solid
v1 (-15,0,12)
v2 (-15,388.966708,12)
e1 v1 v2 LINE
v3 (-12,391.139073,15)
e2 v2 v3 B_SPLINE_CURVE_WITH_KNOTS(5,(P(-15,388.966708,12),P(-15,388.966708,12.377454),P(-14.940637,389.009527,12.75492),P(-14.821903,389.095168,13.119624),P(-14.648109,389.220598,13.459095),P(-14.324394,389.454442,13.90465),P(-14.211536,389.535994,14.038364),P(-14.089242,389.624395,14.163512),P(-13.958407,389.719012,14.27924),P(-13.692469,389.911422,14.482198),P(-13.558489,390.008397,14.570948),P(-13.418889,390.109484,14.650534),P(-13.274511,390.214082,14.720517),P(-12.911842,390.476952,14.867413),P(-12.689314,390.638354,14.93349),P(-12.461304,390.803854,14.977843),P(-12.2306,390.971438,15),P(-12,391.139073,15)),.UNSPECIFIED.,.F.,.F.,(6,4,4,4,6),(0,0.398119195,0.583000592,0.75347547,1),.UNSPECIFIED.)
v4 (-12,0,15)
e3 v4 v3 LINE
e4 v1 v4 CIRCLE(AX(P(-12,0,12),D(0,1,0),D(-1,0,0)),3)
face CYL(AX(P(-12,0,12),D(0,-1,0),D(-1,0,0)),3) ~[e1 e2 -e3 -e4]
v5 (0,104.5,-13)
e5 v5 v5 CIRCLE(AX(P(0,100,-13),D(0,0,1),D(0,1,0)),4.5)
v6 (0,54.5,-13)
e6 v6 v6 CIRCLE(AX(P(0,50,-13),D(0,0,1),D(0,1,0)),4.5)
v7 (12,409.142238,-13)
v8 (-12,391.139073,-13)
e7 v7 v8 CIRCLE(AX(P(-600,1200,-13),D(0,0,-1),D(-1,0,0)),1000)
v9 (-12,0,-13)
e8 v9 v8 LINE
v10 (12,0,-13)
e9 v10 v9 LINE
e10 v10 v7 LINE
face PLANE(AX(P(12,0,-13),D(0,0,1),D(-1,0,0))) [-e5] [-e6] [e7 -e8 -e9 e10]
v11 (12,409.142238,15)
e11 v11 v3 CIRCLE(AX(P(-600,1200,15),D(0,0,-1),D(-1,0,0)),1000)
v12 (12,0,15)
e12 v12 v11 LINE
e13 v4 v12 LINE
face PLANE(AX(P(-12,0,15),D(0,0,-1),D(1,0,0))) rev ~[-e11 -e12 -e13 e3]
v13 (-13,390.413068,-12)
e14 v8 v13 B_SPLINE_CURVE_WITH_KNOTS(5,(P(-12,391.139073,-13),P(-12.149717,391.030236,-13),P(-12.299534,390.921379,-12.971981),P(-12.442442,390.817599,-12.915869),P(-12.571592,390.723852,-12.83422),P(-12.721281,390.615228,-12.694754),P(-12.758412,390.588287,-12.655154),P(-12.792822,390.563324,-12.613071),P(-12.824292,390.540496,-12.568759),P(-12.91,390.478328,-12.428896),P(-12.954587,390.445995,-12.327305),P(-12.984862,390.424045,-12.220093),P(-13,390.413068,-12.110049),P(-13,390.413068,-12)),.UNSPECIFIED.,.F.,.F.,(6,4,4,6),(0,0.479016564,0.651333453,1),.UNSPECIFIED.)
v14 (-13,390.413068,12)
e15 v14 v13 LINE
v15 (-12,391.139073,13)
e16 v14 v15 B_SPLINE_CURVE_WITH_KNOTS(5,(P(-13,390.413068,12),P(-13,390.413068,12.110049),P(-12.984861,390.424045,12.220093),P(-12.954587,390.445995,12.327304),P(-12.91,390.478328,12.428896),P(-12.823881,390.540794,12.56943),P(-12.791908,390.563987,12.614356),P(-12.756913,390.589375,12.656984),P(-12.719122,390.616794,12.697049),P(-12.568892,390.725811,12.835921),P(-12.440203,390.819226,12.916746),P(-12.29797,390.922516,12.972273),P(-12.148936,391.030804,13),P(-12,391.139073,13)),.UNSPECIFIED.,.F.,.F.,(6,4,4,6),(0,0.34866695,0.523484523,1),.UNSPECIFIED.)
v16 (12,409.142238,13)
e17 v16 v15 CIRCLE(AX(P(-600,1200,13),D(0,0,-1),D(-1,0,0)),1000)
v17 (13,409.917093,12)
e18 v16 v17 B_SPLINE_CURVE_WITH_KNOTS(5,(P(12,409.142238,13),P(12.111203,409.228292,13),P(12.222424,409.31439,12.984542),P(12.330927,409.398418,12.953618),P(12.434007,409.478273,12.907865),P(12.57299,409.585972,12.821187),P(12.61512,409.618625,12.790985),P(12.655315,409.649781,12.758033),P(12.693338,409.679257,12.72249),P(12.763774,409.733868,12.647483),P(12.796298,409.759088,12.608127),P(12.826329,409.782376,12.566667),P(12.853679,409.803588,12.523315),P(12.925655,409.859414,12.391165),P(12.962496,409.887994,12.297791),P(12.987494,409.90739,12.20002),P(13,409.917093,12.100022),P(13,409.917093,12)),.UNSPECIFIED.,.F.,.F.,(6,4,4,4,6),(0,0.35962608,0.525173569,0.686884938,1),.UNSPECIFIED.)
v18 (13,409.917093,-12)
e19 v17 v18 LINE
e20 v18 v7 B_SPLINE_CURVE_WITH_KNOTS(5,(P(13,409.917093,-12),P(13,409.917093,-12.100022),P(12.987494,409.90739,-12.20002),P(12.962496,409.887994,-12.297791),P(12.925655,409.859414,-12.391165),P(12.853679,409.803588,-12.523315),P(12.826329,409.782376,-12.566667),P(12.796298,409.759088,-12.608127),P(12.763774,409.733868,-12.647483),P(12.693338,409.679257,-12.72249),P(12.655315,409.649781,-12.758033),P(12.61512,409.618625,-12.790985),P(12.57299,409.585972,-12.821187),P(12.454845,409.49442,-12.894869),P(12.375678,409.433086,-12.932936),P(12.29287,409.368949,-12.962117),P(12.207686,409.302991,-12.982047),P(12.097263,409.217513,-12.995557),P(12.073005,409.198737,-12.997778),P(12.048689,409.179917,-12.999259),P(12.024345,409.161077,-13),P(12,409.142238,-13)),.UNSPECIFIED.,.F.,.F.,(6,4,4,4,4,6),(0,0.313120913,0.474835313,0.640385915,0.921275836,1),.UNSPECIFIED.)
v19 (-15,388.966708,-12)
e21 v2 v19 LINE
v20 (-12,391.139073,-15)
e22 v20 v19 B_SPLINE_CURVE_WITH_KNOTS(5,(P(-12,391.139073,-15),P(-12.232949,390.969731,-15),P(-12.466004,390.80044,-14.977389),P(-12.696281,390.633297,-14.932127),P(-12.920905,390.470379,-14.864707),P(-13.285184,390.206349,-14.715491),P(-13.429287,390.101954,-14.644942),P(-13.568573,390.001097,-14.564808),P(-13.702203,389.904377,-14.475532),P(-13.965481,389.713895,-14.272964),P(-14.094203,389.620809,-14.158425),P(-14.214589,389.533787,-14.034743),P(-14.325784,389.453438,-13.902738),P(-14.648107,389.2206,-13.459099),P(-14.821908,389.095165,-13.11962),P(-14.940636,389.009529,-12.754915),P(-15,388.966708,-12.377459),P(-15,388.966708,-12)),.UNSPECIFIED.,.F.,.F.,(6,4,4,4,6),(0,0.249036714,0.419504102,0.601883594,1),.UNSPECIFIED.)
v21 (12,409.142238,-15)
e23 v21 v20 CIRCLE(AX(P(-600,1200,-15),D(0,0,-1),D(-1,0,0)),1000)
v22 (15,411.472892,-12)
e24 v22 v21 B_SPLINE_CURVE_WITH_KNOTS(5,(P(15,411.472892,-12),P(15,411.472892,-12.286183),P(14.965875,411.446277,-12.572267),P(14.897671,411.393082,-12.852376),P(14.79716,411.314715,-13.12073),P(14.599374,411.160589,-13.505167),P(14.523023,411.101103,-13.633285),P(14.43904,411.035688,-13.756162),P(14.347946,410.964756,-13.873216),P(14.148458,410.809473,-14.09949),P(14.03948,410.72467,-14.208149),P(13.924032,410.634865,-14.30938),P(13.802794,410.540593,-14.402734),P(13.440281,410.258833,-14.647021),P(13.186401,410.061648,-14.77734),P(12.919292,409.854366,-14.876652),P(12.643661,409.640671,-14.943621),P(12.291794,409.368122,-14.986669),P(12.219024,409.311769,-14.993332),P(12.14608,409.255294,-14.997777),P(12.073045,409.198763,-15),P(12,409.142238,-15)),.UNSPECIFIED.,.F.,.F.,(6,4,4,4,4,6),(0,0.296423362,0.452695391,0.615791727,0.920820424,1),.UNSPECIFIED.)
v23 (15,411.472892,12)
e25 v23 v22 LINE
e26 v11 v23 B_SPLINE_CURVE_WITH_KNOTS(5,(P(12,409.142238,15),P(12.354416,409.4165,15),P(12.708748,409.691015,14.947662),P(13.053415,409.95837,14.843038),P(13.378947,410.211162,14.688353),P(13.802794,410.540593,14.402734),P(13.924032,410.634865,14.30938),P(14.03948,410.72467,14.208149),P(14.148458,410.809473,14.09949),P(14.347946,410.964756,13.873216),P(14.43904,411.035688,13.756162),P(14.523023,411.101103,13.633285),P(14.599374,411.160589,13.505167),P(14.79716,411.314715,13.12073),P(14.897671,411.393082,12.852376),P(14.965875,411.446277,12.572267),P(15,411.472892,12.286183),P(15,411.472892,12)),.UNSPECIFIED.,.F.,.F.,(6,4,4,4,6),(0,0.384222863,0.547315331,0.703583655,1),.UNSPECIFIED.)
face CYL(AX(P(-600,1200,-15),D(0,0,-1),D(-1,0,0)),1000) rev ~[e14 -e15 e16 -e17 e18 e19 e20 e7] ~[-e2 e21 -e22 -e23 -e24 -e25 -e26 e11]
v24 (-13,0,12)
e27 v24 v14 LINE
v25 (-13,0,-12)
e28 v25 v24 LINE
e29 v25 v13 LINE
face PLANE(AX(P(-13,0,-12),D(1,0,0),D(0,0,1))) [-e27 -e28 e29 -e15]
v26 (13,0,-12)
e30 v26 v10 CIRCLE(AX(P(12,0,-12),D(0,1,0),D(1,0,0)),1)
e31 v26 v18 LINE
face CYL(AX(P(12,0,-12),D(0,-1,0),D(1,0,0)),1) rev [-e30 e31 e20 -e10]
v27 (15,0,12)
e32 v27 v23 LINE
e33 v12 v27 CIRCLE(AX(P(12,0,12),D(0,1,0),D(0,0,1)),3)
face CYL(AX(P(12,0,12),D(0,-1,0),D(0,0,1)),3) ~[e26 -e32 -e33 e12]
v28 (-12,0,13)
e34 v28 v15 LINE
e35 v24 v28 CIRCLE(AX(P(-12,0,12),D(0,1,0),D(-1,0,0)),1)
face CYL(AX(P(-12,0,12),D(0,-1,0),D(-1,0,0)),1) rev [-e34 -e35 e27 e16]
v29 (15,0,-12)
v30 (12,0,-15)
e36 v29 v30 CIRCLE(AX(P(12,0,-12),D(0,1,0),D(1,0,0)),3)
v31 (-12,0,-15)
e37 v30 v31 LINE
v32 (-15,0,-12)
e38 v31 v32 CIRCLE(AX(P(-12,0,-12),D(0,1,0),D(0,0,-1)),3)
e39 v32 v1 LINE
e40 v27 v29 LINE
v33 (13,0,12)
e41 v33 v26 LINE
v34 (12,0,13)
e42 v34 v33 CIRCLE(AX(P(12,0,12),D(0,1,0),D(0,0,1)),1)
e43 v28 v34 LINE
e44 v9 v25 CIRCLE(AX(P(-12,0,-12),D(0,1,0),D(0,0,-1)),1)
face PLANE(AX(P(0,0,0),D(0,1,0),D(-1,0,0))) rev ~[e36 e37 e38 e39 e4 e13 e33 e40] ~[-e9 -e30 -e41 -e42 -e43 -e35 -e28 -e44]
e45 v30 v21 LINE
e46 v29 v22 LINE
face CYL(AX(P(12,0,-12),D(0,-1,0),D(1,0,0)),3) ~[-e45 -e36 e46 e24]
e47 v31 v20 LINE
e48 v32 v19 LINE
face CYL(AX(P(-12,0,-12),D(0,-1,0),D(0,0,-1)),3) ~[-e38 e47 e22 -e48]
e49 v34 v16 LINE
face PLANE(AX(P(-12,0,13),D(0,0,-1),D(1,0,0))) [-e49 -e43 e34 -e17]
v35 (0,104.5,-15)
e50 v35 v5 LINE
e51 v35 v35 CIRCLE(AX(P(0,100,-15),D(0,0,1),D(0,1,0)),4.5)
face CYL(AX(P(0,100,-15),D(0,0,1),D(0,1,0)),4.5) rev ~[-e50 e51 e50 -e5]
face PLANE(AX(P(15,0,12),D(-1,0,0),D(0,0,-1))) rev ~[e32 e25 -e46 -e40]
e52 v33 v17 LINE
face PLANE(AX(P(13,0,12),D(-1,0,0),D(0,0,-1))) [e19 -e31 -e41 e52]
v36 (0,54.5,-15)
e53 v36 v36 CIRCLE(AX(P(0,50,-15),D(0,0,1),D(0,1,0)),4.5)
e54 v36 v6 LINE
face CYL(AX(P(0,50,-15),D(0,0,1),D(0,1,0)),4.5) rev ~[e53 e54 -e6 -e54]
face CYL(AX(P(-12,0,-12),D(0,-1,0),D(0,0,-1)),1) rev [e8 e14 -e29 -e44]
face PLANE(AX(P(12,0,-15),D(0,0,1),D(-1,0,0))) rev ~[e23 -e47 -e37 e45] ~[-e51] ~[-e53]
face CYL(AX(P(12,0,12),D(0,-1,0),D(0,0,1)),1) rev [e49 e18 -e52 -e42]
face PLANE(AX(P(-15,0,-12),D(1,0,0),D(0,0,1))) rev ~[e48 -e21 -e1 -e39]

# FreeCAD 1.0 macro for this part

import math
import FreeCAD as App
import Part
import Sketcher
Q = App.Units.Quantity

doc = App.newDocument("Part")
body = doc.addObject("PartDesign::Body", "Body")

# Sketch on XZ plane
sketch1 = body.newObject("Sketcher::SketchObject", "Sketch")
sketch1.AttachmentSupport = (doc.getObject("XZ_Plane"), [""])
sketch1.MapMode = "FlatFace"
sketch1.addGeometry([
    Part.ArcOfCircle(Part.Circle(App.Vector(12, -12, 0), App.Vector(0, 0, 1), 3), math.radians(-90), math.radians(0)),  # 0
    Part.LineSegment(App.Vector(12, -15, 0), App.Vector(-12, -15, 0)),  # 1
    Part.ArcOfCircle(Part.Circle(App.Vector(-12, -12, 0), App.Vector(0, 0, 1), 3), math.radians(180), math.radians(270)),  # 2
    Part.LineSegment(App.Vector(-15, -12, 0), App.Vector(-15, 12, 0)),  # 3
    Part.ArcOfCircle(Part.Circle(App.Vector(-12, 12, 0), App.Vector(0, 0, 1), 3), math.radians(90), math.radians(180)),  # 4
    Part.LineSegment(App.Vector(-12, 15, 0), App.Vector(12, 15, 0)),  # 5
    Part.ArcOfCircle(Part.Circle(App.Vector(12, 12, 0), App.Vector(0, 0, 1), 3), math.radians(0), math.radians(90)),  # 6
    Part.LineSegment(App.Vector(15, 12, 0), App.Vector(15, -12, 0)),  # 7
    Part.LineSegment(App.Vector(-13, 12, 0), App.Vector(-13, -12, 0)),  # 8
    Part.ArcOfCircle(Part.Circle(App.Vector(-12, -12, 0), App.Vector(0, 0, 1), 1), math.radians(180), math.radians(270)),  # 9
    Part.LineSegment(App.Vector(-12, -13, 0), App.Vector(12, -13, 0)),  # 10
    Part.ArcOfCircle(Part.Circle(App.Vector(12, -12, 0), App.Vector(0, 0, 1), 1), math.radians(-90), math.radians(0)),  # 11
    Part.LineSegment(App.Vector(13, -12, 0), App.Vector(13, 12, 0)),  # 12
    Part.ArcOfCircle(Part.Circle(App.Vector(12, 12, 0), App.Vector(0, 0, 1), 1), math.radians(0), math.radians(90)),  # 13
    Part.LineSegment(App.Vector(12, 13, 0), App.Vector(-12, 13, 0)),  # 14
    Part.ArcOfCircle(Part.Circle(App.Vector(-12, 12, 0), App.Vector(0, 0, 1), 1), math.radians(90), math.radians(180)),  # 15
], False)
sketch1.addConstraint([
    Sketcher.Constraint("Tangent", 0, 1, 1, 1),
    Sketcher.Constraint("Tangent", 1, 2, 2, 2),
    Sketcher.Constraint("Tangent", 2, 1, 3, 1),
    Sketcher.Constraint("Tangent", 3, 2, 4, 2),
    Sketcher.Constraint("Tangent", 4, 1, 5, 1),
    Sketcher.Constraint("Tangent", 5, 2, 6, 2),
    Sketcher.Constraint("Tangent", 6, 1, 7, 1),
    Sketcher.Constraint("Tangent", 7, 2, 0, 2),
    Sketcher.Constraint("Tangent", 8, 2, 9, 1),
    Sketcher.Constraint("Tangent", 9, 2, 10, 1),
    Sketcher.Constraint("Tangent", 10, 2, 11, 1),
    Sketcher.Constraint("Tangent", 11, 2, 12, 1),
    Sketcher.Constraint("Tangent", 12, 2, 13, 1),
    Sketcher.Constraint("Tangent", 13, 2, 14, 1),
    Sketcher.Constraint("Tangent", 14, 2, 15, 1),
    Sketcher.Constraint("Tangent", 15, 2, 8, 1),
    Sketcher.Constraint("Horizontal", 1),
    Sketcher.Constraint("Vertical", 3),
    Sketcher.Constraint("Horizontal", 5),
    Sketcher.Constraint("Vertical", 7),
    Sketcher.Constraint("Vertical", 8),
    Sketcher.Constraint("Horizontal", 10),
    Sketcher.Constraint("Vertical", 12),
    Sketcher.Constraint("Horizontal", 14),
    Sketcher.Constraint("Coincident", 9, 3, 2, 3),
    Sketcher.Constraint("Coincident", 11, 3, 0, 3),
    Sketcher.Constraint("Coincident", 13, 3, 6, 3),
    Sketcher.Constraint("Equal", 0, 2),
    Sketcher.Constraint("Equal", 2, 4),
    Sketcher.Constraint("Equal", 4, 6),
    Sketcher.Constraint("Equal", 13, 15),
    Sketcher.Constraint("Symmetric", 0, 3, 4, 3, -1, 1),
    Sketcher.Constraint("Equal", 14, 3),
    Sketcher.Constraint("Radius", 9, Q("1 mm")),
    Sketcher.Constraint("Radius", 0, Q("3 mm")),
    Sketcher.Constraint("DistanceX", 1, 2, 1, 1, Q("24 mm")),
])
pad1 = body.newObject("PartDesign::Pad", "Pad")
pad1.Profile = sketch1
pad1.Length = 500
pad1.Reversed = True

# Sketch on XY plane
sketch2 = body.newObject("Sketcher::SketchObject", "Sketch001")
sketch2.AttachmentSupport = (doc.getObject("XY_Plane"), [""])
sketch2.MapMode = "FlatFace"
sketch2.AttachmentOffset = App.Placement(App.Vector(0, 0, -15), App.Rotation())
sketch2.addGeometry([
    Part.Circle(App.Vector(0, 50, 0), App.Vector(0, 0, 1), 4.5),
    Part.Circle(App.Vector(0, 100, 0), App.Vector(0, 0, 1), 4.5),
], False)
sketch2.addConstraint([
    Sketcher.Constraint("Equal", 0, 1),
    Sketcher.Constraint("PointOnObject", 0, 3, -2),
    Sketcher.Constraint("PointOnObject", 1, 3, -2),
    Sketcher.Constraint("Diameter", 0, Q("9 mm")),
    Sketcher.Constraint("DistanceY", -1, 1, 0, 3, Q("50 mm")),
    Sketcher.Constraint("DistanceY", -1, 1, 1, 3, Q("100 mm")),
])
doc.recompute()
hole = body.newObject("PartDesign::Hole", "Hole")
hole.Profile = sketch2
hole.ThreadType = "None"
hole.Diameter = 9
hole.DepthType = "Dimension"
hole.Depth = 20.2
hole.DrillPoint = "Angled"
hole.DrillPointAngle = 118
hole.Reversed = True

# Sketch on XY plane
sketch3 = body.newObject("Sketcher::SketchObject", "Sketch002")
sketch3.AttachmentSupport = (doc.getObject("XY_Plane"), [""])
sketch3.MapMode = "FlatFace"
sketch3.AttachmentOffset = App.Placement(App.Vector(0, 0, -15), App.Rotation())
sketch3.addGeometry(Part.Circle(App.Vector(-600, 1200, 0), App.Vector(0, 0, 1), 1000), False)
sketch3.addConstraint([
    Sketcher.Constraint("Diameter", 0, Q("2000 mm")),
    Sketcher.Constraint("DistanceX", 0, 3, -1, 1, Q("600 mm")),
    Sketcher.Constraint("DistanceY", -1, 1, 0, 3, Q("1200 mm")),
])
pocket1 = body.newObject("PartDesign::Pocket", "Pocket")
pocket1.Profile = sketch3
pocket1.Type = "ThroughAll"
pocket1.Reversed = True

doc.recompute()
